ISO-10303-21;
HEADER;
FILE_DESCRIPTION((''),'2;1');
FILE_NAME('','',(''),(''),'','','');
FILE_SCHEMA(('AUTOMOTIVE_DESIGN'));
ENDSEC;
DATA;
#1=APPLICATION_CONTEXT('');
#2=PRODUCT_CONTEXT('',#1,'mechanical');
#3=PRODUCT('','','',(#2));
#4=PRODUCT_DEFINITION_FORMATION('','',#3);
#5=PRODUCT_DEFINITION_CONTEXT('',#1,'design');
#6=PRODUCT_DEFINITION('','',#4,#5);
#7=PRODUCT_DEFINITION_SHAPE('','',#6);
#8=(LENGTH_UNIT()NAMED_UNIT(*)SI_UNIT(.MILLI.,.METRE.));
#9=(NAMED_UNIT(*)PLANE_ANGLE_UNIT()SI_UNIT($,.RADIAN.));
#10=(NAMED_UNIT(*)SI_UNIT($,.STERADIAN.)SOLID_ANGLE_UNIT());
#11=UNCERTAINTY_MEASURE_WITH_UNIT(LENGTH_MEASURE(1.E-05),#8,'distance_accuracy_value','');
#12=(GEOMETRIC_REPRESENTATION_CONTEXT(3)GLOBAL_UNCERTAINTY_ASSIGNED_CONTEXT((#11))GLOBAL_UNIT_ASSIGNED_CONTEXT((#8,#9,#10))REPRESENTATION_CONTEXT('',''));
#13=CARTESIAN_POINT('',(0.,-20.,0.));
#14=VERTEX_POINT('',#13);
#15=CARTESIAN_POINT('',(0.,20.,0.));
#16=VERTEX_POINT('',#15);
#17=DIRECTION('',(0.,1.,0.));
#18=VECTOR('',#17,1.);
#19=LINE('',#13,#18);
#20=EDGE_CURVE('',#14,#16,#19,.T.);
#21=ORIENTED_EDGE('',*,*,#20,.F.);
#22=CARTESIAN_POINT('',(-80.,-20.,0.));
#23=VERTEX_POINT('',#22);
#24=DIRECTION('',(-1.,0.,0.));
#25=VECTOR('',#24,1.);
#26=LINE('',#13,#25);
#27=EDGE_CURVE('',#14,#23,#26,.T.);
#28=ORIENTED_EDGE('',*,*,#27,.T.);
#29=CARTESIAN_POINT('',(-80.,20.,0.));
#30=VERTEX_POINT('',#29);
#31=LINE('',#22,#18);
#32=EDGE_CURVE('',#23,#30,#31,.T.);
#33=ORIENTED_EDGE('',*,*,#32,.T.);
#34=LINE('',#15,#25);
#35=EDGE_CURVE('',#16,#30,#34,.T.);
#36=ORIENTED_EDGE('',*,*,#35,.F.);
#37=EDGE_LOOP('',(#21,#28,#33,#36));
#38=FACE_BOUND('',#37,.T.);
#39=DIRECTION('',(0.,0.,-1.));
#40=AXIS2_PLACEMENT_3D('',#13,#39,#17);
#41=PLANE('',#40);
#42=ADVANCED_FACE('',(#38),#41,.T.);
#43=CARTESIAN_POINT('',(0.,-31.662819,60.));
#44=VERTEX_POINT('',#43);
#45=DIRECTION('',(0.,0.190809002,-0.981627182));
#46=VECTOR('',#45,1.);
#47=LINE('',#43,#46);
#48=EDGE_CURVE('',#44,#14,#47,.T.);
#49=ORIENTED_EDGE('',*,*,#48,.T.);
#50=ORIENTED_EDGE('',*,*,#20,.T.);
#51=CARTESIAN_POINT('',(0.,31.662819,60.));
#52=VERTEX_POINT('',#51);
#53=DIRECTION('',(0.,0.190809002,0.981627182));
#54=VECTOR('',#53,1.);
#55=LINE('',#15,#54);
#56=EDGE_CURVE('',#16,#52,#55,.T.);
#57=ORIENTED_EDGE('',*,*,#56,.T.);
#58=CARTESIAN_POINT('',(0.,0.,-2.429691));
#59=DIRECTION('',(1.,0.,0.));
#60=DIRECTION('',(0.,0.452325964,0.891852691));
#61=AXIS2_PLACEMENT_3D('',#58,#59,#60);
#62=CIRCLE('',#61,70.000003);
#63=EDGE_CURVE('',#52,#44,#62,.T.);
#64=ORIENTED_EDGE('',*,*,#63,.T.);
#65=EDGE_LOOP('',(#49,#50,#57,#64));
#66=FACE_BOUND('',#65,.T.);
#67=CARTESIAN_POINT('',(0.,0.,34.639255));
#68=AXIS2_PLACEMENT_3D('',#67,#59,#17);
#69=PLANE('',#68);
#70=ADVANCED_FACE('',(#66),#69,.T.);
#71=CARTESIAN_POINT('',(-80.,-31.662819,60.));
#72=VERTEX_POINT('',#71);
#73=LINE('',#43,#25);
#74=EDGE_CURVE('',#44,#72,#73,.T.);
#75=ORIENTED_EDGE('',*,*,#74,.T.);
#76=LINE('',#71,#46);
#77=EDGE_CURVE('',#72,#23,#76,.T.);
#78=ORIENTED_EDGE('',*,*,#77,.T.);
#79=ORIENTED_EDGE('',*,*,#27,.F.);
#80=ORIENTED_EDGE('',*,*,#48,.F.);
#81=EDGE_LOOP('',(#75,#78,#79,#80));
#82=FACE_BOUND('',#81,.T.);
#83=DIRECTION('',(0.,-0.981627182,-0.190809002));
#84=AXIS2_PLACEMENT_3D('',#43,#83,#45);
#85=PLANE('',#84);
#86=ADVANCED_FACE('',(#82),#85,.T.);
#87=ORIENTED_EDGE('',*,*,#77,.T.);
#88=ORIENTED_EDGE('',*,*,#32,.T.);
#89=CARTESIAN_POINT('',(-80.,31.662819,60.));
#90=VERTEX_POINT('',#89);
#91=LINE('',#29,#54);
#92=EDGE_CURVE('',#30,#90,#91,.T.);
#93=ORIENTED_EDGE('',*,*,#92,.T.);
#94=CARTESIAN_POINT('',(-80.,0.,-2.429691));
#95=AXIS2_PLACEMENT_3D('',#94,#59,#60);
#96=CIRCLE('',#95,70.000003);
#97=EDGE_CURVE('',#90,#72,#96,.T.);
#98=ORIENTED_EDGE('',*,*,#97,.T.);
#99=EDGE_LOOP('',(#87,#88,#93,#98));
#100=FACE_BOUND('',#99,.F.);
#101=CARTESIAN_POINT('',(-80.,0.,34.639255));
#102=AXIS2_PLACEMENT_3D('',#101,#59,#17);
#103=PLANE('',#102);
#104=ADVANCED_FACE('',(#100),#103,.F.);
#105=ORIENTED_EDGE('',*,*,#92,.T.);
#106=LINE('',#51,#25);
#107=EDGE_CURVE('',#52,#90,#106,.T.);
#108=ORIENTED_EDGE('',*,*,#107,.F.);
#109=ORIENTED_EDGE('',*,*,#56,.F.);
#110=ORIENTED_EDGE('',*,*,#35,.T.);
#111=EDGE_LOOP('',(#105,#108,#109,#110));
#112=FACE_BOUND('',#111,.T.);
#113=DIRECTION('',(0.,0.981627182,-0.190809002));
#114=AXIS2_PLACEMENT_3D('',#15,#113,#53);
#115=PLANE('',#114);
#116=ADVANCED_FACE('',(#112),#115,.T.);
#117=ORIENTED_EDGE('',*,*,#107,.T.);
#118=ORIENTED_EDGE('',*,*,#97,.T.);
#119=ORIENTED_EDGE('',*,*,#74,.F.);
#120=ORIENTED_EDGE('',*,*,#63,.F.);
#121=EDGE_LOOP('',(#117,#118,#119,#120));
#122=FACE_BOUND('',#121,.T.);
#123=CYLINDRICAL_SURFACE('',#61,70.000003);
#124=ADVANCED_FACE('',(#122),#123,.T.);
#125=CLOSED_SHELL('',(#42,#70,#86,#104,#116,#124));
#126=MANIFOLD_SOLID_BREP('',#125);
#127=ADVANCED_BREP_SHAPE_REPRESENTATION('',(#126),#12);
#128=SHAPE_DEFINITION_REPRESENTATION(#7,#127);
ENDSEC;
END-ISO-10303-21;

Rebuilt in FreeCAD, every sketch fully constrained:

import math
import FreeCAD as App
import Part
import Sketcher

V = App.Vector
Q = App.Units.Quantity

doc = App.newDocument("Part")
params = doc.addObject("Spreadsheet::Sheet", "Params")
for row, (alias, value) in enumerate([
    ("sketch1_width", "40 mm"),
    ("pad1_length", "80 mm"),
], start=1):
    params.set(f"A{row}", alias)
    params.set(f"B{row}", "=" + value)
    params.setAlias(f"B{row}", alias)

body = doc.addObject("PartDesign::Body", "Body")

sketch1 = body.newObject("Sketcher::SketchObject", "Sketch")
sketch1.AttachmentSupport = (doc.getObject("YZ_Plane"), [""])
sketch1.MapMode = "FlatFace"
sketch1.addGeometry(Part.LineSegment(V(20, 0, 0), V(32, 60, 0)), False)
sketch1.addGeometry(Part.ArcOfCircle(Part.Circle(V(0, -2, 0), V(0, 0, 1), 70), math.radians(63), math.radians(117)), False)
sketch1.addGeometry(Part.LineSegment(V(-32, 60, 0), V(-20, 0, 0)), False)
sketch1.addGeometry(Part.LineSegment(V(-20, 0, 0), V(20, 0, 0)), False)
sketch1.addConstraint(Sketcher.Constraint("Coincident", 0, 2, 1, 1))
sketch1.addConstraint(Sketcher.Constraint("Coincident", 1, 2, 2, 1))
sketch1.addConstraint(Sketcher.Constraint("Coincident", 2, 2, 3, 1))
sketch1.addConstraint(Sketcher.Constraint("Coincident", 3, 2, 0, 1))
sketch1.addConstraint(Sketcher.Constraint("Horizontal", 3))
sketch1.addConstraint(Sketcher.Constraint("Symmetric", 2, 2, 3, 2, -1, 1))
sketch1.addConstraint(Sketcher.Constraint("Symmetric", 0, 2, 1, 2, -2))
sketch1.addConstraint(Sketcher.Constraint("DistanceX", 3, 1, 3, 2, 40.0))
sketch1.addConstraint(Sketcher.Constraint("Angle", 0, Q("79 deg")))
sketch1.addConstraint(Sketcher.Constraint("DistanceY", -1, 1, 0, 2, 60.0))
sketch1.addConstraint(Sketcher.Constraint("Radius", 1, 70.000003))
sketch1.setExpression("Constraints[7]", "Params.sketch1_width")
pad1 = body.newObject("PartDesign::Pad", "Pad")
pad1.Profile = sketch1
pad1.setExpression("Length", "Params.pad1_length")
pad1.Reversed = True

doc.recompute()
